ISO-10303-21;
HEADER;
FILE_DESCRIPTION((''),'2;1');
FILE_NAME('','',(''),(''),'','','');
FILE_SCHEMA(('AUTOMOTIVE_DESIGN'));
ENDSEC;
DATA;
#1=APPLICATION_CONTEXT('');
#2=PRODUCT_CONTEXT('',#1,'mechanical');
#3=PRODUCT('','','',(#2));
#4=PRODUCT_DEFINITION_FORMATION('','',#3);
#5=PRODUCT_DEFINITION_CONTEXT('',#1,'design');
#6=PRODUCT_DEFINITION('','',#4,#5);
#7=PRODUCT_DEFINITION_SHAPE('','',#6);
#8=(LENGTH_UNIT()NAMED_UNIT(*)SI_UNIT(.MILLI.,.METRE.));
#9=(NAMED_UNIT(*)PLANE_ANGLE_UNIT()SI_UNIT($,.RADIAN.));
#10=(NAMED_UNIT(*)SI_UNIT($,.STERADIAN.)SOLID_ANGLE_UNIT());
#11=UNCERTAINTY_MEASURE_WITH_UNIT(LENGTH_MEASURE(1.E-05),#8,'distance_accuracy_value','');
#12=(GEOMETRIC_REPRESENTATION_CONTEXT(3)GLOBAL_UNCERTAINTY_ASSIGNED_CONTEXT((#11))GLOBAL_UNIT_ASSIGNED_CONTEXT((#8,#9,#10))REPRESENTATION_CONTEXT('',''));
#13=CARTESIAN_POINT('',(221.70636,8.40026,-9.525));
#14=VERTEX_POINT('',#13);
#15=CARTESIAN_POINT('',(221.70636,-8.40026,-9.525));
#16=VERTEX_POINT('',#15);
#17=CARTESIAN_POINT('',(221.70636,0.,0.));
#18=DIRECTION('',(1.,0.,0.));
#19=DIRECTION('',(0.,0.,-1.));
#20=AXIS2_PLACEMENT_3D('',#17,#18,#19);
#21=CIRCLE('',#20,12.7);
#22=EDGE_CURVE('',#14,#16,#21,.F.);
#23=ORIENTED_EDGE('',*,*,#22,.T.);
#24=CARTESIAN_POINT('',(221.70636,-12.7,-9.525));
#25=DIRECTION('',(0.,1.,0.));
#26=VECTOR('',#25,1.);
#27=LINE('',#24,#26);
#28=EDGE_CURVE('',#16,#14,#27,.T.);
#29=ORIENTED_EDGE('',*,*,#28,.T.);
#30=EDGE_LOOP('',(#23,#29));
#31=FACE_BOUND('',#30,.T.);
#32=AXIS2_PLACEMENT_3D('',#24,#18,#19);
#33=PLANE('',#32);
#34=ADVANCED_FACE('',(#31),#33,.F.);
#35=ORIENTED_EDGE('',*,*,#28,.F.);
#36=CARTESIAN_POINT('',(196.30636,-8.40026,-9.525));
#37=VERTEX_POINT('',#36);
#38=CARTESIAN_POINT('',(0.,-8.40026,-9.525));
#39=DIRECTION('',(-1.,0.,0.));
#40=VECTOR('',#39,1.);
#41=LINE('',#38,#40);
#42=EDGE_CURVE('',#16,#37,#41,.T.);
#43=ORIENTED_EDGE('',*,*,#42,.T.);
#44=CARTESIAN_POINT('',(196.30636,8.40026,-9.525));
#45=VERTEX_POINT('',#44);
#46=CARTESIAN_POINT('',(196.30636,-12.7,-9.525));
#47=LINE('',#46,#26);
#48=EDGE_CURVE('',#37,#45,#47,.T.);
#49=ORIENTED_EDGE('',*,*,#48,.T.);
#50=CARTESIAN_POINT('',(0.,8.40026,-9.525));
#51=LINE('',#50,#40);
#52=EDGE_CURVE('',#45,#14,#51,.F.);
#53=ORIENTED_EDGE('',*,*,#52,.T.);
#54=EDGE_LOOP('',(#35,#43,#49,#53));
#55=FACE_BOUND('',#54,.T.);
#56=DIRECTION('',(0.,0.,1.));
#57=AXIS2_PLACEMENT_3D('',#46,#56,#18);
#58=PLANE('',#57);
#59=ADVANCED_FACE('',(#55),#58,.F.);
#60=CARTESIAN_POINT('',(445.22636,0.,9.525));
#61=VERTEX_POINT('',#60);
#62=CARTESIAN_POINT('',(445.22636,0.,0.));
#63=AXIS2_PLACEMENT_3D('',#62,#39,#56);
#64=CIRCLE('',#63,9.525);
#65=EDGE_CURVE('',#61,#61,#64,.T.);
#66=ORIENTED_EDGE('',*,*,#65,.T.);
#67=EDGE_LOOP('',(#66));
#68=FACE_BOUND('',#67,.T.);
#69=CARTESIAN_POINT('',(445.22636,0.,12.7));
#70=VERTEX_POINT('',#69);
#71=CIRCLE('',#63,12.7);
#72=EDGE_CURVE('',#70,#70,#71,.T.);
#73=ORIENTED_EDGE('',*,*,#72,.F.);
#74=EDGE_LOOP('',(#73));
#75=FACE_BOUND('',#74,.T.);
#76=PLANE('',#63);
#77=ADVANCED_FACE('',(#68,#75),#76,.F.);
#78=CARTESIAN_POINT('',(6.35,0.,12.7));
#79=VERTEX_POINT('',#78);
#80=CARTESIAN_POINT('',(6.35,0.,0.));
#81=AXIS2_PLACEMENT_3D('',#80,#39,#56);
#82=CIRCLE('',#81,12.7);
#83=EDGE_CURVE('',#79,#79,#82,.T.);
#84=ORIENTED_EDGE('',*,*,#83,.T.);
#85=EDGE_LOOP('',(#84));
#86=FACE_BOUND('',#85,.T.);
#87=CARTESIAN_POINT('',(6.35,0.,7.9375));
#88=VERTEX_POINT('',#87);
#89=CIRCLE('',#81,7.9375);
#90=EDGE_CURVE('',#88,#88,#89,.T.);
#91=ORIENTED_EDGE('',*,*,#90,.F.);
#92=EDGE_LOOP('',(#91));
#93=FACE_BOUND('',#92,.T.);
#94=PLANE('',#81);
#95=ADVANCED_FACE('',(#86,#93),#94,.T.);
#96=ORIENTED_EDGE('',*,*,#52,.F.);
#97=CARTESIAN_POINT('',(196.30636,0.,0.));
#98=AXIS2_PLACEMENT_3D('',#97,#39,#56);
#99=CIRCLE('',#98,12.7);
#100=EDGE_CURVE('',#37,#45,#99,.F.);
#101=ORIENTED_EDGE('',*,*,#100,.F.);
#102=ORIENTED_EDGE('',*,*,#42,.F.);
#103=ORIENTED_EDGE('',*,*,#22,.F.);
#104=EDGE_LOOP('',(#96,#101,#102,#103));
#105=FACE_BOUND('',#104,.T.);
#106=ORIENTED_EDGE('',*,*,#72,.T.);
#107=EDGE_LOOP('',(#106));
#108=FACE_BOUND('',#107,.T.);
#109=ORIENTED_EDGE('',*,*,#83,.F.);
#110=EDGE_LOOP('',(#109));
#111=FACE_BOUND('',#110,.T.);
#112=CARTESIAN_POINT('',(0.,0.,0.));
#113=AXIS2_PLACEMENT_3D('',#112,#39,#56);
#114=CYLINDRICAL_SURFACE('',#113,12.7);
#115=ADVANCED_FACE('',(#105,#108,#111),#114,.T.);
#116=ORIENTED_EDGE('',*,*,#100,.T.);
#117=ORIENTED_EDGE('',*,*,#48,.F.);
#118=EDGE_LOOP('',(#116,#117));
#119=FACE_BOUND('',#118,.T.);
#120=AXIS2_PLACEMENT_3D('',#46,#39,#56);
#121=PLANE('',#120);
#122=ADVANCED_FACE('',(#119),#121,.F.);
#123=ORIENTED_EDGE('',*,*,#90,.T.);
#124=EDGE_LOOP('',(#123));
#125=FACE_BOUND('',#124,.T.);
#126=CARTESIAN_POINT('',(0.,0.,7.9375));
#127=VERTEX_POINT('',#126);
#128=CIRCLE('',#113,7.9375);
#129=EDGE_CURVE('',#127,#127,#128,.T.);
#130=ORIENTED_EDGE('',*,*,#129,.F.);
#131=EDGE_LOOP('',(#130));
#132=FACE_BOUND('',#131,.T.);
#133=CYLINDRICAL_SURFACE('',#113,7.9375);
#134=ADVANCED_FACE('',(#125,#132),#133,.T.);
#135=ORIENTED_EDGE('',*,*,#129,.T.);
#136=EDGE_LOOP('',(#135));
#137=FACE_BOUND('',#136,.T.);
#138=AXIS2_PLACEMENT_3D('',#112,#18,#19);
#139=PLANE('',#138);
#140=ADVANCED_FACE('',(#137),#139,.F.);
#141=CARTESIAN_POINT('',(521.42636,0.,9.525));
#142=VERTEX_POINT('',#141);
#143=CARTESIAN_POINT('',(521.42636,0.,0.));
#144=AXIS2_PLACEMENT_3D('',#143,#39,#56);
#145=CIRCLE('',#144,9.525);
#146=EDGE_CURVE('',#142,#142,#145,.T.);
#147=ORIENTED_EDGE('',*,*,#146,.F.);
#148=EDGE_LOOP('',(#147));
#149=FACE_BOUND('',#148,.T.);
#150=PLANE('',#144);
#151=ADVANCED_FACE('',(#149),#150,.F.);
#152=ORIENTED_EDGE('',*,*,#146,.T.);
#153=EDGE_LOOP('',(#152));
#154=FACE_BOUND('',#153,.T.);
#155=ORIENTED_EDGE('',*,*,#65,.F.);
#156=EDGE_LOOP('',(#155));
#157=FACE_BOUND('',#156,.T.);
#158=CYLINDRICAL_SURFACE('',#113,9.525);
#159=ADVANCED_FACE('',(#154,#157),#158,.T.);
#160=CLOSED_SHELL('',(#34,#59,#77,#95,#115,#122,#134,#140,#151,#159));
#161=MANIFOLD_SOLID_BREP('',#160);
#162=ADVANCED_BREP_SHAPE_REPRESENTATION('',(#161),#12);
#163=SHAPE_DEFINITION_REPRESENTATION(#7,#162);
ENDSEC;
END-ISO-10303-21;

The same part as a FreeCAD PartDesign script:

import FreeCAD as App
import Part
import Sketcher
from FreeCAD import Vector
Q = App.Units.Quantity


def add_polygon(sketch, points):
    """Adds a closed chain of lines whose ends are joined by coincident constraints."""
    first, n = sketch.GeometryCount, len(points)
    for a, b in zip(points, points[1:] + points[:1]):
        sketch.addGeometry(Part.LineSegment(App.Vector(*a, 0), App.Vector(*b, 0)), False)
    for i in range(n):
        sketch.addConstraint(Sketcher.Constraint("Coincident", first + i, 2, first + (i + 1) % n, 1))

doc = App.newDocument("Part")
body = doc.addObject("PartDesign::Body", "Body")

sketch1 = body.newObject("Sketcher::SketchObject", "Sketch")
sketch1.AttachmentSupport = (doc.getObject("XZ_Plane"), [""])
sketch1.MapMode = "FlatFace"
add_polygon(sketch1, [(6.3, -12.7), (6.3, -7.9), (0, -7.9), (0, 0), (521.4, 0), (521.4, -9.5), (445.2, -9.5), (445.2, -12.7)])
sketch1.addConstraint(Sketcher.Constraint("Vertical", 0))
sketch1.addConstraint(Sketcher.Constraint("Horizontal", 1))
sketch1.addConstraint(Sketcher.Constraint("Vertical", 2))
sketch1.addConstraint(Sketcher.Constraint("Horizontal", 3))
sketch1.addConstraint(Sketcher.Constraint("Vertical", 4))
sketch1.addConstraint(Sketcher.Constraint("Horizontal", 5))
sketch1.addConstraint(Sketcher.Constraint("Vertical", 6))
sketch1.addConstraint(Sketcher.Constraint("Horizontal", 7))
sketch1.addConstraint(Sketcher.Constraint("Coincident", 2, 2, -1, 1))
sketch1.addConstraint(Sketcher.Constraint("DistanceX", 5, 2, 5, 1, Q("3 in")))
sketch1.addConstraint(Sketcher.Constraint("DistanceX", 1, 2, 1, 1, Q("0.25 in")))
sketch1.addConstraint(Sketcher.Constraint("DistanceY", 6, 2, -1, 1, Q("0.5 in")))
sketch1.addConstraint(Sketcher.Constraint("DistanceY", 0, 1, 0, 2, Q("0.1875 in")))
sketch1.addConstraint(Sketcher.Constraint("DistanceY", 4, 2, 4, 1, Q("0.375 in")))
sketch1.addConstraint(Sketcher.Constraint("DistanceX", 3, 1, 3, 2, Q("521.42636 mm")))
revolution = body.newObject("PartDesign::Revolution", "Revolution")
revolution.Profile = sketch1
revolution.ReferenceAxis = (sketch1, ["H_Axis"])
revolution.Angle = 360

sketch2 = body.newObject("Sketcher::SketchObject", "Sketch001")
sketch2.AttachmentSupport = (doc.getObject("XZ_Plane"), [""])
sketch2.MapMode = "FlatFace"
add_polygon(sketch2, [(196.3, -12.7), (196.3, -9.5), (221.7, -9.5), (221.7, -12.7)])
sketch2.addConstraint(Sketcher.Constraint("Vertical", 0))
sketch2.addConstraint(Sketcher.Constraint("Horizontal", 1))
sketch2.addConstraint(Sketcher.Constraint("Vertical", 2))
sketch2.addConstraint(Sketcher.Constraint("Horizontal", 3))
sketch2.addConstraint(Sketcher.Constraint("DistanceX", 1, 1, 1, 2, Q("1 in")))
sketch2.addConstraint(Sketcher.Constraint("DistanceY", 2, 2, -1, 1, Q("0.5 in")))
sketch2.addConstraint(Sketcher.Constraint("DistanceY", 0, 1, 0, 2, Q("0.125 in")))
sketch2.addConstraint(Sketcher.Constraint("DistanceX", -1, 1, 0, 2, Q("196.30636 mm")))
pocket1 = body.newObject("PartDesign::Pocket", "Pocket")
pocket1.Profile = sketch2
pocket1.Type = "ThroughAll"
pocket1.Midplane = True

doc.recompute()
